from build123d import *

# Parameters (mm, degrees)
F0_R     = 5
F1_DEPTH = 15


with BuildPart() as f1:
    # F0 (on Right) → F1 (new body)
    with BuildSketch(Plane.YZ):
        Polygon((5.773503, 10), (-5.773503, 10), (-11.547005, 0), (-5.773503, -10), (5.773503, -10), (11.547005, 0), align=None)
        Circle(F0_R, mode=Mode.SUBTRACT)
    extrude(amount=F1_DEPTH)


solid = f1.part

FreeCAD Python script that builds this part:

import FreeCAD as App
import Part
import Sketcher
Q = App.Units.Quantity

doc = App.newDocument("Part")
body = doc.addObject("PartDesign::Body", "Body")

# Sketch on YZ plane
sketch1 = body.newObject("Sketcher::SketchObject", "Sketch")
sketch1.AttachmentSupport = (doc.getObject("YZ_Plane"), [""])
sketch1.MapMode = "FlatFace"
sketch1.addGeometry([
    Part.LineSegment(App.Vector(5.773503, 10, 0), App.Vector(-5.773503, 10, 0)),  # 0
    Part.LineSegment(App.Vector(-5.773503, 10, 0), App.Vector(-11.547005, 0, 0)),  # 1
    Part.LineSegment(App.Vector(-11.547005, 0, 0), App.Vector(-5.773503, -10, 0)),  # 2
    Part.LineSegment(App.Vector(-5.773503, -10, 0), App.Vector(5.773503, -10, 0)),  # 3
    Part.LineSegment(App.Vector(5.773503, -10, 0), App.Vector(11.547005, 0, 0)),  # 4
    Part.LineSegment(App.Vector(11.547005, 0, 0), App.Vector(5.773503, 10, 0)),  # 5
    Part.Circle(App.Vector(0, 0, 0), App.Vector(0, 0, 1), 5),  # 6
], False)
sketch1.addConstraint([
    Sketcher.Constraint("Coincident", 0, 2, 1, 1),
    Sketcher.Constraint("Coincident", 1, 2, 2, 1),
    Sketcher.Constraint("Coincident", 2, 2, 3, 1),
    Sketcher.Constraint("Coincident", 3, 2, 4, 1),
    Sketcher.Constraint("Coincident", 4, 2, 5, 1),
    Sketcher.Constraint("Coincident", 5, 2, 0, 1),
    Sketcher.Constraint("Horizontal", 0),
    Sketcher.Constraint("Horizontal", 3),
    Sketcher.Constraint("Coincident", 6, 3, -1, 1),
    Sketcher.Constraint("Symmetric", 0, 2, 3, 2, -1, 1),
    Sketcher.Constraint("Symmetric", 1, 2, 4, 2, -1, 1),
    Sketcher.Constraint("PointOnObject", 1, 2, -1),
    Sketcher.Constraint("Parallel", 2, 5),
    Sketcher.Constraint("Vertical", 0, 2, 2, 2),
    Sketcher.Constraint("Diameter", 6, 10.0),
    Sketcher.Constraint("Angle", 1, Q("-119.999997 deg")),
    Sketcher.Constraint("DistanceY", -1, 1, 0, 2, 10.0),
    Sketcher.Constraint("DistanceX", 0, 2, 0, 1, 11.547006),
])
pad1 = body.newObject("PartDesign::Pad", "Pad")
pad1.Profile = sketch1
pad1.Length = 15

doc.recompute()
